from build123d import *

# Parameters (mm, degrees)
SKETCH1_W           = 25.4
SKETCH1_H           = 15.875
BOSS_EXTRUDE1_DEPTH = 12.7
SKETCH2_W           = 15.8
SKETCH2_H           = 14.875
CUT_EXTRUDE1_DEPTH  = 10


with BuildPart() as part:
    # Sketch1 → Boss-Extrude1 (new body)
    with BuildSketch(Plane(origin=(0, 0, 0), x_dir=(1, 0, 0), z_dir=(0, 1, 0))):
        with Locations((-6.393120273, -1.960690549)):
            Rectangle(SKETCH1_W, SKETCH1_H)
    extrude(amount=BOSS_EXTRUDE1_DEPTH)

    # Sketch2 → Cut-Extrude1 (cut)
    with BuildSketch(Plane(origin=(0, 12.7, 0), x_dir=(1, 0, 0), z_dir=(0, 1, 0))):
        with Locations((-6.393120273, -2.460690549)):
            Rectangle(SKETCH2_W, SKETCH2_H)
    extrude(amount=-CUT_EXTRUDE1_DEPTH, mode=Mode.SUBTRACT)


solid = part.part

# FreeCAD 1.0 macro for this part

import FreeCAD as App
import Part
import Sketcher
Q = App.Units.Quantity

doc = App.newDocument("Part")
body = doc.addObject("PartDesign::Body", "Body")

# Sketch on XZ plane
sketch1 = body.newObject("Sketcher::SketchObject", "Sketch")
sketch1.AttachmentSupport = (doc.getObject("XZ_Plane"), [""])
sketch1.MapMode = "FlatFace"
sketch1.addGeometry(Part.LineSegment(App.Vector(-19, -6, 0), App.Vector(-19, 10, 0)), False)
sketch1.addGeometry(Part.LineSegment(App.Vector(-19, 10, 0), App.Vector(6, 10, 0)), False)
sketch1.addGeometry(Part.LineSegment(App.Vector(6, 10, 0), App.Vector(6, -6, 0)), False)
sketch1.addGeometry(Part.LineSegment(App.Vector(6, -6, 0), App.Vector(-19, -6, 0)), False)
sketch1.addConstraint(Sketcher.Constraint("Coincident", 0, 2, 1, 1))
sketch1.addConstraint(Sketcher.Constraint("Coincident", 1, 2, 2, 1))
sketch1.addConstraint(Sketcher.Constraint("Coincident", 2, 2, 3, 1))
sketch1.addConstraint(Sketcher.Constraint("Coincident", 3, 2, 0, 1))
sketch1.addConstraint(Sketcher.Constraint("Vertical", 0))
sketch1.addConstraint(Sketcher.Constraint("Horizontal", 1))
sketch1.addConstraint(Sketcher.Constraint("Vertical", 2))
sketch1.addConstraint(Sketcher.Constraint("Horizontal", 3))
sketch1.addConstraint(Sketcher.Constraint("DistanceX", 1, 1, 1, 2, Q("1 in")))
sketch1.addConstraint(Sketcher.Constraint("DistanceY", 0, 1, 0, 2, Q("0.625 in")))
sketch1.addConstraint(Sketcher.Constraint("DistanceX", 0, 2, -1, 1, Q("19.09312 mm")))
sketch1.addConstraint(Sketcher.Constraint("DistanceY", -1, 1, 0, 2, Q("9.898191 mm")))
pad1 = body.newObject("PartDesign::Pad", "Pad")
pad1.Profile = sketch1
pad1.Length = Q("0.5 in")
pad1.Reversed = True

# Sketch on XZ plane
sketch2 = body.newObject("Sketcher::SketchObject", "Sketch001")
sketch2.AttachmentSupport = (doc.getObject("XZ_Plane"), [""])
sketch2.MapMode = "FlatFace"
sketch2.AttachmentOffset = App.Placement(App.Vector(0, 0, -0.5 * 25.4), App.Rotation())
sketch2.addGeometry(Part.LineSegment(App.Vector(-14, -5, 0), App.Vector(-14, 10, 0)), False)
sketch2.addGeometry(Part.LineSegment(App.Vector(-14, 10, 0), App.Vector(2, 10, 0)), False)
sketch2.addGeometry(Part.LineSegment(App.Vector(2, 10, 0), App.Vector(2, -5, 0)), False)
sketch2.addGeometry(Part.LineSegment(App.Vector(2, -5, 0), App.Vector(-14, -5, 0)), False)
sketch2.addConstraint(Sketcher.Constraint("Coincident", 0, 2, 1, 1))
sketch2.addConstraint(Sketcher.Constraint("Coincident", 1, 2, 2, 1))
sketch2.addConstraint(Sketcher.Constraint("Coincident", 2, 2, 3, 1))
sketch2.addConstraint(Sketcher.Constraint("Coincident", 3, 2, 0, 1))
sketch2.addConstraint(Sketcher.Constraint("Vertical", 0))
sketch2.addConstraint(Sketcher.Constraint("Horizontal", 1))
sketch2.addConstraint(Sketcher.Constraint("Vertical", 2))
sketch2.addConstraint(Sketcher.Constraint("Horizontal", 3))
sketch2.addConstraint(Sketcher.Constraint("DistanceX", 1, 1, 1, 2, Q("15.8 mm")))
sketch2.addConstraint(Sketcher.Constraint("DistanceY", 0, 1, 0, 2, Q("14.875 mm")))
sketch2.addConstraint(Sketcher.Constraint("DistanceX", 0, 2, -1, 1, Q("14.29312 mm")))
sketch2.addConstraint(Sketcher.Constraint("DistanceY", -1, 1, 0, 2, Q("9.898191 mm")))
pocket1 = body.newObject("PartDesign::Pocket", "Pocket")
pocket1.Profile = sketch2
pocket1.Length = 10
pocket1.Reversed = True

doc.recompute()
